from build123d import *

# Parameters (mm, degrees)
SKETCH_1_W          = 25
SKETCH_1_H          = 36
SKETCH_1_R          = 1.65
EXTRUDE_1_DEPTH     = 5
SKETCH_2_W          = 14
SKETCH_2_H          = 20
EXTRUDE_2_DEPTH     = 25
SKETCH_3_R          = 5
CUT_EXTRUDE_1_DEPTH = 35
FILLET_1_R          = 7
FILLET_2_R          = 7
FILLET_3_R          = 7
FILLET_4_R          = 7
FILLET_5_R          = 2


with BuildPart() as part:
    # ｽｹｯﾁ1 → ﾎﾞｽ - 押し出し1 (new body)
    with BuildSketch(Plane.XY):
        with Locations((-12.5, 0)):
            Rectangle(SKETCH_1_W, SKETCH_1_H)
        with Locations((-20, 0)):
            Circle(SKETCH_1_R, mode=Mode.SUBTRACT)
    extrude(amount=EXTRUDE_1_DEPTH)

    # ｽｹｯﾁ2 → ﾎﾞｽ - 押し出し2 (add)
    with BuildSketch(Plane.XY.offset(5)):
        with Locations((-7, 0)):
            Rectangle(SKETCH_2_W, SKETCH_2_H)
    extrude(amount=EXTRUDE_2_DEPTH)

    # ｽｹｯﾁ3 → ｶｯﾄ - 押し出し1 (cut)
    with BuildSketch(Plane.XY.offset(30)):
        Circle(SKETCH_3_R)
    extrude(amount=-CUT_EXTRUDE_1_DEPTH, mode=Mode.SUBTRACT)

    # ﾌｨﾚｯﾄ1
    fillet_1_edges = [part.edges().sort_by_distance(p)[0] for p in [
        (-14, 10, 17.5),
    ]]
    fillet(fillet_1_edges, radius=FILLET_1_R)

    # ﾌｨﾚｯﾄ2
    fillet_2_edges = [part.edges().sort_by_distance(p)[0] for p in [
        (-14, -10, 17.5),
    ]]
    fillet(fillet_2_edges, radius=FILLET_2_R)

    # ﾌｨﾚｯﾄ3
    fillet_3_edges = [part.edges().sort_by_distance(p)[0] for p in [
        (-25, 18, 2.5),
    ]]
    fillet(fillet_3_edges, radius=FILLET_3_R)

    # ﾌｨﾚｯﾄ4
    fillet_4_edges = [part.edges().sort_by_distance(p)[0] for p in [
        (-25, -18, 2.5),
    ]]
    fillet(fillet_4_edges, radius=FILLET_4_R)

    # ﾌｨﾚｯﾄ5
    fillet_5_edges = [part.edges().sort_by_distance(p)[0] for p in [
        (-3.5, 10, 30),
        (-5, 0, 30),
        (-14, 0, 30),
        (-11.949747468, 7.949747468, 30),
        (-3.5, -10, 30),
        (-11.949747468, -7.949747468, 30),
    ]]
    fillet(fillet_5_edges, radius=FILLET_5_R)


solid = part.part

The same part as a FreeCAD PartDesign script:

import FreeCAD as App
import Part
import Sketcher

V = App.Vector


def edges_at(feature, points):
    """Names of the edges that pass closest to the given points."""
    edges = feature.Shape.Edges
    near = lambda p: min(range(len(edges)), key=lambda i: edges[i].distToShape(Part.Vertex(*p))[0])
    return sorted({f"Edge{near(p) + 1}" for p in points})


def add_polygon(sketch, points):
    """Adds a closed chain of lines whose ends are joined by coincident constraints."""
    first, n = sketch.GeometryCount, len(points)
    for a, b in zip(points, points[1:] + points[:1]):
        sketch.addGeometry(Part.LineSegment(App.Vector(*a, 0), App.Vector(*b, 0)), False)
    for i in range(n):
        sketch.addConstraint(Sketcher.Constraint("Coincident", first + i, 2, first + (i + 1) % n, 1))

doc = App.newDocument("Part")
body = doc.addObject("PartDesign::Body", "Body")

# Sketch on XY plane
sketch1 = body.newObject("Sketcher::SketchObject", "Sketch")
sketch1.AttachmentSupport = (doc.getObject("XY_Plane"), [""])
sketch1.MapMode = "FlatFace"
add_polygon(sketch1, [(-25, 18), (-25, -18), (0, -18), (0, 18)])  # lines 0-3
sketch1.addGeometry(Part.Circle(V(-20, 0, 0), V(0, 0, 1), 1.6), False)  # 4
sketch1.addConstraint([
    Sketcher.Constraint("Vertical", 0),
    Sketcher.Constraint("Horizontal", 1),
    Sketcher.Constraint("Vertical", 2),
    Sketcher.Constraint("Horizontal", 3),
    Sketcher.Constraint("Symmetric", 1, 2, 2, 2, -1, 1),
    Sketcher.Constraint("PointOnObject", 4, 3, -1),
    Sketcher.Constraint("Diameter", 4, 3.3),
    Sketcher.Constraint("DistanceX", 1, 1, 1, 2, 25.0),
    Sketcher.Constraint("DistanceY", 0, 2, 0, 1, 36.0),
    Sketcher.Constraint("DistanceX", 4, 3, -1, 1, 20.0),
])
pad1 = body.newObject("PartDesign::Pad", "Pad")
pad1.Profile = sketch1
pad1.Length = 5

# Sketch on XY plane
sketch2 = body.newObject("Sketcher::SketchObject", "Sketch001")
sketch2.AttachmentSupport = (doc.getObject("XY_Plane"), [""])
sketch2.MapMode = "FlatFace"
sketch2.AttachmentOffset = App.Placement(V(0, 0, 5), App.Rotation())
add_polygon(sketch2, [(-14, 10), (-14, -10), (0, -10), (0, 10)])  # lines 0-3
sketch2.addConstraint([
    Sketcher.Constraint("Vertical", 0),
    Sketcher.Constraint("Horizontal", 1),
    Sketcher.Constraint("Vertical", 2),
    Sketcher.Constraint("Horizontal", 3),
    Sketcher.Constraint("Symmetric", 1, 2, 2, 2, -1, 1),
    Sketcher.Constraint("DistanceX", 1, 1, 1, 2, 14.0),
    Sketcher.Constraint("DistanceY", 0, 2, 0, 1, 20.0),
])
pad2 = body.newObject("PartDesign::Pad", "Pad001")
pad2.Profile = sketch2
pad2.Length = 25

# Sketch on XY plane
sketch3 = body.newObject("Sketcher::SketchObject", "Sketch002")
sketch3.AttachmentSupport = (doc.getObject("XY_Plane"), [""])
sketch3.MapMode = "FlatFace"
sketch3.AttachmentOffset = App.Placement(V(0, 0, 30), App.Rotation())
sketch3.addGeometry(Part.Circle(V(0, 0, 0), V(0, 0, 1), 5), False)
sketch3.addConstraint([
    Sketcher.Constraint("Coincident", 0, 3, -1, 1),
    Sketcher.Constraint("Diameter", 0, 10.0),
])
pocket1 = body.newObject("PartDesign::Pocket", "Pocket")
pocket1.Profile = sketch3
pocket1.Length = 35
doc.recompute()

fillet = body.newObject("PartDesign::Fillet", "Fillet")
fillet.Base = (pocket1, edges_at(pocket1, [(-14, 10, 17.5)]))
fillet.Radius = 7
doc.recompute()

fillet2 = body.newObject("PartDesign::Fillet", "Fillet001")
fillet2.Base = (fillet, edges_at(fillet, [(-14, -10, 17.5)]))
fillet2.Radius = 7
doc.recompute()

fillet3 = body.newObject("PartDesign::Fillet", "Fillet002")
fillet3.Base = (fillet2, edges_at(fillet2, [(-25, 18, 2.5)]))
fillet3.Radius = 7
doc.recompute()

fillet4 = body.newObject("PartDesign::Fillet", "Fillet003")
fillet4.Base = (fillet3, edges_at(fillet3, [(-25, -18, 2.5)]))
fillet4.Radius = 7
doc.recompute()

fillet5 = body.newObject("PartDesign::Fillet", "Fillet004")
fillet5.Base = (fillet4, edges_at(fillet4, [
    (-3.5, 10, 30),
    (-5, 0, 30),
    (-14, 0, 30),
    (-11.95, 7.95, 30),
    (-3.5, -10, 30),
    (-11.95, -7.95, 30),
]))
fillet5.Radius = 2

doc.recompute()
